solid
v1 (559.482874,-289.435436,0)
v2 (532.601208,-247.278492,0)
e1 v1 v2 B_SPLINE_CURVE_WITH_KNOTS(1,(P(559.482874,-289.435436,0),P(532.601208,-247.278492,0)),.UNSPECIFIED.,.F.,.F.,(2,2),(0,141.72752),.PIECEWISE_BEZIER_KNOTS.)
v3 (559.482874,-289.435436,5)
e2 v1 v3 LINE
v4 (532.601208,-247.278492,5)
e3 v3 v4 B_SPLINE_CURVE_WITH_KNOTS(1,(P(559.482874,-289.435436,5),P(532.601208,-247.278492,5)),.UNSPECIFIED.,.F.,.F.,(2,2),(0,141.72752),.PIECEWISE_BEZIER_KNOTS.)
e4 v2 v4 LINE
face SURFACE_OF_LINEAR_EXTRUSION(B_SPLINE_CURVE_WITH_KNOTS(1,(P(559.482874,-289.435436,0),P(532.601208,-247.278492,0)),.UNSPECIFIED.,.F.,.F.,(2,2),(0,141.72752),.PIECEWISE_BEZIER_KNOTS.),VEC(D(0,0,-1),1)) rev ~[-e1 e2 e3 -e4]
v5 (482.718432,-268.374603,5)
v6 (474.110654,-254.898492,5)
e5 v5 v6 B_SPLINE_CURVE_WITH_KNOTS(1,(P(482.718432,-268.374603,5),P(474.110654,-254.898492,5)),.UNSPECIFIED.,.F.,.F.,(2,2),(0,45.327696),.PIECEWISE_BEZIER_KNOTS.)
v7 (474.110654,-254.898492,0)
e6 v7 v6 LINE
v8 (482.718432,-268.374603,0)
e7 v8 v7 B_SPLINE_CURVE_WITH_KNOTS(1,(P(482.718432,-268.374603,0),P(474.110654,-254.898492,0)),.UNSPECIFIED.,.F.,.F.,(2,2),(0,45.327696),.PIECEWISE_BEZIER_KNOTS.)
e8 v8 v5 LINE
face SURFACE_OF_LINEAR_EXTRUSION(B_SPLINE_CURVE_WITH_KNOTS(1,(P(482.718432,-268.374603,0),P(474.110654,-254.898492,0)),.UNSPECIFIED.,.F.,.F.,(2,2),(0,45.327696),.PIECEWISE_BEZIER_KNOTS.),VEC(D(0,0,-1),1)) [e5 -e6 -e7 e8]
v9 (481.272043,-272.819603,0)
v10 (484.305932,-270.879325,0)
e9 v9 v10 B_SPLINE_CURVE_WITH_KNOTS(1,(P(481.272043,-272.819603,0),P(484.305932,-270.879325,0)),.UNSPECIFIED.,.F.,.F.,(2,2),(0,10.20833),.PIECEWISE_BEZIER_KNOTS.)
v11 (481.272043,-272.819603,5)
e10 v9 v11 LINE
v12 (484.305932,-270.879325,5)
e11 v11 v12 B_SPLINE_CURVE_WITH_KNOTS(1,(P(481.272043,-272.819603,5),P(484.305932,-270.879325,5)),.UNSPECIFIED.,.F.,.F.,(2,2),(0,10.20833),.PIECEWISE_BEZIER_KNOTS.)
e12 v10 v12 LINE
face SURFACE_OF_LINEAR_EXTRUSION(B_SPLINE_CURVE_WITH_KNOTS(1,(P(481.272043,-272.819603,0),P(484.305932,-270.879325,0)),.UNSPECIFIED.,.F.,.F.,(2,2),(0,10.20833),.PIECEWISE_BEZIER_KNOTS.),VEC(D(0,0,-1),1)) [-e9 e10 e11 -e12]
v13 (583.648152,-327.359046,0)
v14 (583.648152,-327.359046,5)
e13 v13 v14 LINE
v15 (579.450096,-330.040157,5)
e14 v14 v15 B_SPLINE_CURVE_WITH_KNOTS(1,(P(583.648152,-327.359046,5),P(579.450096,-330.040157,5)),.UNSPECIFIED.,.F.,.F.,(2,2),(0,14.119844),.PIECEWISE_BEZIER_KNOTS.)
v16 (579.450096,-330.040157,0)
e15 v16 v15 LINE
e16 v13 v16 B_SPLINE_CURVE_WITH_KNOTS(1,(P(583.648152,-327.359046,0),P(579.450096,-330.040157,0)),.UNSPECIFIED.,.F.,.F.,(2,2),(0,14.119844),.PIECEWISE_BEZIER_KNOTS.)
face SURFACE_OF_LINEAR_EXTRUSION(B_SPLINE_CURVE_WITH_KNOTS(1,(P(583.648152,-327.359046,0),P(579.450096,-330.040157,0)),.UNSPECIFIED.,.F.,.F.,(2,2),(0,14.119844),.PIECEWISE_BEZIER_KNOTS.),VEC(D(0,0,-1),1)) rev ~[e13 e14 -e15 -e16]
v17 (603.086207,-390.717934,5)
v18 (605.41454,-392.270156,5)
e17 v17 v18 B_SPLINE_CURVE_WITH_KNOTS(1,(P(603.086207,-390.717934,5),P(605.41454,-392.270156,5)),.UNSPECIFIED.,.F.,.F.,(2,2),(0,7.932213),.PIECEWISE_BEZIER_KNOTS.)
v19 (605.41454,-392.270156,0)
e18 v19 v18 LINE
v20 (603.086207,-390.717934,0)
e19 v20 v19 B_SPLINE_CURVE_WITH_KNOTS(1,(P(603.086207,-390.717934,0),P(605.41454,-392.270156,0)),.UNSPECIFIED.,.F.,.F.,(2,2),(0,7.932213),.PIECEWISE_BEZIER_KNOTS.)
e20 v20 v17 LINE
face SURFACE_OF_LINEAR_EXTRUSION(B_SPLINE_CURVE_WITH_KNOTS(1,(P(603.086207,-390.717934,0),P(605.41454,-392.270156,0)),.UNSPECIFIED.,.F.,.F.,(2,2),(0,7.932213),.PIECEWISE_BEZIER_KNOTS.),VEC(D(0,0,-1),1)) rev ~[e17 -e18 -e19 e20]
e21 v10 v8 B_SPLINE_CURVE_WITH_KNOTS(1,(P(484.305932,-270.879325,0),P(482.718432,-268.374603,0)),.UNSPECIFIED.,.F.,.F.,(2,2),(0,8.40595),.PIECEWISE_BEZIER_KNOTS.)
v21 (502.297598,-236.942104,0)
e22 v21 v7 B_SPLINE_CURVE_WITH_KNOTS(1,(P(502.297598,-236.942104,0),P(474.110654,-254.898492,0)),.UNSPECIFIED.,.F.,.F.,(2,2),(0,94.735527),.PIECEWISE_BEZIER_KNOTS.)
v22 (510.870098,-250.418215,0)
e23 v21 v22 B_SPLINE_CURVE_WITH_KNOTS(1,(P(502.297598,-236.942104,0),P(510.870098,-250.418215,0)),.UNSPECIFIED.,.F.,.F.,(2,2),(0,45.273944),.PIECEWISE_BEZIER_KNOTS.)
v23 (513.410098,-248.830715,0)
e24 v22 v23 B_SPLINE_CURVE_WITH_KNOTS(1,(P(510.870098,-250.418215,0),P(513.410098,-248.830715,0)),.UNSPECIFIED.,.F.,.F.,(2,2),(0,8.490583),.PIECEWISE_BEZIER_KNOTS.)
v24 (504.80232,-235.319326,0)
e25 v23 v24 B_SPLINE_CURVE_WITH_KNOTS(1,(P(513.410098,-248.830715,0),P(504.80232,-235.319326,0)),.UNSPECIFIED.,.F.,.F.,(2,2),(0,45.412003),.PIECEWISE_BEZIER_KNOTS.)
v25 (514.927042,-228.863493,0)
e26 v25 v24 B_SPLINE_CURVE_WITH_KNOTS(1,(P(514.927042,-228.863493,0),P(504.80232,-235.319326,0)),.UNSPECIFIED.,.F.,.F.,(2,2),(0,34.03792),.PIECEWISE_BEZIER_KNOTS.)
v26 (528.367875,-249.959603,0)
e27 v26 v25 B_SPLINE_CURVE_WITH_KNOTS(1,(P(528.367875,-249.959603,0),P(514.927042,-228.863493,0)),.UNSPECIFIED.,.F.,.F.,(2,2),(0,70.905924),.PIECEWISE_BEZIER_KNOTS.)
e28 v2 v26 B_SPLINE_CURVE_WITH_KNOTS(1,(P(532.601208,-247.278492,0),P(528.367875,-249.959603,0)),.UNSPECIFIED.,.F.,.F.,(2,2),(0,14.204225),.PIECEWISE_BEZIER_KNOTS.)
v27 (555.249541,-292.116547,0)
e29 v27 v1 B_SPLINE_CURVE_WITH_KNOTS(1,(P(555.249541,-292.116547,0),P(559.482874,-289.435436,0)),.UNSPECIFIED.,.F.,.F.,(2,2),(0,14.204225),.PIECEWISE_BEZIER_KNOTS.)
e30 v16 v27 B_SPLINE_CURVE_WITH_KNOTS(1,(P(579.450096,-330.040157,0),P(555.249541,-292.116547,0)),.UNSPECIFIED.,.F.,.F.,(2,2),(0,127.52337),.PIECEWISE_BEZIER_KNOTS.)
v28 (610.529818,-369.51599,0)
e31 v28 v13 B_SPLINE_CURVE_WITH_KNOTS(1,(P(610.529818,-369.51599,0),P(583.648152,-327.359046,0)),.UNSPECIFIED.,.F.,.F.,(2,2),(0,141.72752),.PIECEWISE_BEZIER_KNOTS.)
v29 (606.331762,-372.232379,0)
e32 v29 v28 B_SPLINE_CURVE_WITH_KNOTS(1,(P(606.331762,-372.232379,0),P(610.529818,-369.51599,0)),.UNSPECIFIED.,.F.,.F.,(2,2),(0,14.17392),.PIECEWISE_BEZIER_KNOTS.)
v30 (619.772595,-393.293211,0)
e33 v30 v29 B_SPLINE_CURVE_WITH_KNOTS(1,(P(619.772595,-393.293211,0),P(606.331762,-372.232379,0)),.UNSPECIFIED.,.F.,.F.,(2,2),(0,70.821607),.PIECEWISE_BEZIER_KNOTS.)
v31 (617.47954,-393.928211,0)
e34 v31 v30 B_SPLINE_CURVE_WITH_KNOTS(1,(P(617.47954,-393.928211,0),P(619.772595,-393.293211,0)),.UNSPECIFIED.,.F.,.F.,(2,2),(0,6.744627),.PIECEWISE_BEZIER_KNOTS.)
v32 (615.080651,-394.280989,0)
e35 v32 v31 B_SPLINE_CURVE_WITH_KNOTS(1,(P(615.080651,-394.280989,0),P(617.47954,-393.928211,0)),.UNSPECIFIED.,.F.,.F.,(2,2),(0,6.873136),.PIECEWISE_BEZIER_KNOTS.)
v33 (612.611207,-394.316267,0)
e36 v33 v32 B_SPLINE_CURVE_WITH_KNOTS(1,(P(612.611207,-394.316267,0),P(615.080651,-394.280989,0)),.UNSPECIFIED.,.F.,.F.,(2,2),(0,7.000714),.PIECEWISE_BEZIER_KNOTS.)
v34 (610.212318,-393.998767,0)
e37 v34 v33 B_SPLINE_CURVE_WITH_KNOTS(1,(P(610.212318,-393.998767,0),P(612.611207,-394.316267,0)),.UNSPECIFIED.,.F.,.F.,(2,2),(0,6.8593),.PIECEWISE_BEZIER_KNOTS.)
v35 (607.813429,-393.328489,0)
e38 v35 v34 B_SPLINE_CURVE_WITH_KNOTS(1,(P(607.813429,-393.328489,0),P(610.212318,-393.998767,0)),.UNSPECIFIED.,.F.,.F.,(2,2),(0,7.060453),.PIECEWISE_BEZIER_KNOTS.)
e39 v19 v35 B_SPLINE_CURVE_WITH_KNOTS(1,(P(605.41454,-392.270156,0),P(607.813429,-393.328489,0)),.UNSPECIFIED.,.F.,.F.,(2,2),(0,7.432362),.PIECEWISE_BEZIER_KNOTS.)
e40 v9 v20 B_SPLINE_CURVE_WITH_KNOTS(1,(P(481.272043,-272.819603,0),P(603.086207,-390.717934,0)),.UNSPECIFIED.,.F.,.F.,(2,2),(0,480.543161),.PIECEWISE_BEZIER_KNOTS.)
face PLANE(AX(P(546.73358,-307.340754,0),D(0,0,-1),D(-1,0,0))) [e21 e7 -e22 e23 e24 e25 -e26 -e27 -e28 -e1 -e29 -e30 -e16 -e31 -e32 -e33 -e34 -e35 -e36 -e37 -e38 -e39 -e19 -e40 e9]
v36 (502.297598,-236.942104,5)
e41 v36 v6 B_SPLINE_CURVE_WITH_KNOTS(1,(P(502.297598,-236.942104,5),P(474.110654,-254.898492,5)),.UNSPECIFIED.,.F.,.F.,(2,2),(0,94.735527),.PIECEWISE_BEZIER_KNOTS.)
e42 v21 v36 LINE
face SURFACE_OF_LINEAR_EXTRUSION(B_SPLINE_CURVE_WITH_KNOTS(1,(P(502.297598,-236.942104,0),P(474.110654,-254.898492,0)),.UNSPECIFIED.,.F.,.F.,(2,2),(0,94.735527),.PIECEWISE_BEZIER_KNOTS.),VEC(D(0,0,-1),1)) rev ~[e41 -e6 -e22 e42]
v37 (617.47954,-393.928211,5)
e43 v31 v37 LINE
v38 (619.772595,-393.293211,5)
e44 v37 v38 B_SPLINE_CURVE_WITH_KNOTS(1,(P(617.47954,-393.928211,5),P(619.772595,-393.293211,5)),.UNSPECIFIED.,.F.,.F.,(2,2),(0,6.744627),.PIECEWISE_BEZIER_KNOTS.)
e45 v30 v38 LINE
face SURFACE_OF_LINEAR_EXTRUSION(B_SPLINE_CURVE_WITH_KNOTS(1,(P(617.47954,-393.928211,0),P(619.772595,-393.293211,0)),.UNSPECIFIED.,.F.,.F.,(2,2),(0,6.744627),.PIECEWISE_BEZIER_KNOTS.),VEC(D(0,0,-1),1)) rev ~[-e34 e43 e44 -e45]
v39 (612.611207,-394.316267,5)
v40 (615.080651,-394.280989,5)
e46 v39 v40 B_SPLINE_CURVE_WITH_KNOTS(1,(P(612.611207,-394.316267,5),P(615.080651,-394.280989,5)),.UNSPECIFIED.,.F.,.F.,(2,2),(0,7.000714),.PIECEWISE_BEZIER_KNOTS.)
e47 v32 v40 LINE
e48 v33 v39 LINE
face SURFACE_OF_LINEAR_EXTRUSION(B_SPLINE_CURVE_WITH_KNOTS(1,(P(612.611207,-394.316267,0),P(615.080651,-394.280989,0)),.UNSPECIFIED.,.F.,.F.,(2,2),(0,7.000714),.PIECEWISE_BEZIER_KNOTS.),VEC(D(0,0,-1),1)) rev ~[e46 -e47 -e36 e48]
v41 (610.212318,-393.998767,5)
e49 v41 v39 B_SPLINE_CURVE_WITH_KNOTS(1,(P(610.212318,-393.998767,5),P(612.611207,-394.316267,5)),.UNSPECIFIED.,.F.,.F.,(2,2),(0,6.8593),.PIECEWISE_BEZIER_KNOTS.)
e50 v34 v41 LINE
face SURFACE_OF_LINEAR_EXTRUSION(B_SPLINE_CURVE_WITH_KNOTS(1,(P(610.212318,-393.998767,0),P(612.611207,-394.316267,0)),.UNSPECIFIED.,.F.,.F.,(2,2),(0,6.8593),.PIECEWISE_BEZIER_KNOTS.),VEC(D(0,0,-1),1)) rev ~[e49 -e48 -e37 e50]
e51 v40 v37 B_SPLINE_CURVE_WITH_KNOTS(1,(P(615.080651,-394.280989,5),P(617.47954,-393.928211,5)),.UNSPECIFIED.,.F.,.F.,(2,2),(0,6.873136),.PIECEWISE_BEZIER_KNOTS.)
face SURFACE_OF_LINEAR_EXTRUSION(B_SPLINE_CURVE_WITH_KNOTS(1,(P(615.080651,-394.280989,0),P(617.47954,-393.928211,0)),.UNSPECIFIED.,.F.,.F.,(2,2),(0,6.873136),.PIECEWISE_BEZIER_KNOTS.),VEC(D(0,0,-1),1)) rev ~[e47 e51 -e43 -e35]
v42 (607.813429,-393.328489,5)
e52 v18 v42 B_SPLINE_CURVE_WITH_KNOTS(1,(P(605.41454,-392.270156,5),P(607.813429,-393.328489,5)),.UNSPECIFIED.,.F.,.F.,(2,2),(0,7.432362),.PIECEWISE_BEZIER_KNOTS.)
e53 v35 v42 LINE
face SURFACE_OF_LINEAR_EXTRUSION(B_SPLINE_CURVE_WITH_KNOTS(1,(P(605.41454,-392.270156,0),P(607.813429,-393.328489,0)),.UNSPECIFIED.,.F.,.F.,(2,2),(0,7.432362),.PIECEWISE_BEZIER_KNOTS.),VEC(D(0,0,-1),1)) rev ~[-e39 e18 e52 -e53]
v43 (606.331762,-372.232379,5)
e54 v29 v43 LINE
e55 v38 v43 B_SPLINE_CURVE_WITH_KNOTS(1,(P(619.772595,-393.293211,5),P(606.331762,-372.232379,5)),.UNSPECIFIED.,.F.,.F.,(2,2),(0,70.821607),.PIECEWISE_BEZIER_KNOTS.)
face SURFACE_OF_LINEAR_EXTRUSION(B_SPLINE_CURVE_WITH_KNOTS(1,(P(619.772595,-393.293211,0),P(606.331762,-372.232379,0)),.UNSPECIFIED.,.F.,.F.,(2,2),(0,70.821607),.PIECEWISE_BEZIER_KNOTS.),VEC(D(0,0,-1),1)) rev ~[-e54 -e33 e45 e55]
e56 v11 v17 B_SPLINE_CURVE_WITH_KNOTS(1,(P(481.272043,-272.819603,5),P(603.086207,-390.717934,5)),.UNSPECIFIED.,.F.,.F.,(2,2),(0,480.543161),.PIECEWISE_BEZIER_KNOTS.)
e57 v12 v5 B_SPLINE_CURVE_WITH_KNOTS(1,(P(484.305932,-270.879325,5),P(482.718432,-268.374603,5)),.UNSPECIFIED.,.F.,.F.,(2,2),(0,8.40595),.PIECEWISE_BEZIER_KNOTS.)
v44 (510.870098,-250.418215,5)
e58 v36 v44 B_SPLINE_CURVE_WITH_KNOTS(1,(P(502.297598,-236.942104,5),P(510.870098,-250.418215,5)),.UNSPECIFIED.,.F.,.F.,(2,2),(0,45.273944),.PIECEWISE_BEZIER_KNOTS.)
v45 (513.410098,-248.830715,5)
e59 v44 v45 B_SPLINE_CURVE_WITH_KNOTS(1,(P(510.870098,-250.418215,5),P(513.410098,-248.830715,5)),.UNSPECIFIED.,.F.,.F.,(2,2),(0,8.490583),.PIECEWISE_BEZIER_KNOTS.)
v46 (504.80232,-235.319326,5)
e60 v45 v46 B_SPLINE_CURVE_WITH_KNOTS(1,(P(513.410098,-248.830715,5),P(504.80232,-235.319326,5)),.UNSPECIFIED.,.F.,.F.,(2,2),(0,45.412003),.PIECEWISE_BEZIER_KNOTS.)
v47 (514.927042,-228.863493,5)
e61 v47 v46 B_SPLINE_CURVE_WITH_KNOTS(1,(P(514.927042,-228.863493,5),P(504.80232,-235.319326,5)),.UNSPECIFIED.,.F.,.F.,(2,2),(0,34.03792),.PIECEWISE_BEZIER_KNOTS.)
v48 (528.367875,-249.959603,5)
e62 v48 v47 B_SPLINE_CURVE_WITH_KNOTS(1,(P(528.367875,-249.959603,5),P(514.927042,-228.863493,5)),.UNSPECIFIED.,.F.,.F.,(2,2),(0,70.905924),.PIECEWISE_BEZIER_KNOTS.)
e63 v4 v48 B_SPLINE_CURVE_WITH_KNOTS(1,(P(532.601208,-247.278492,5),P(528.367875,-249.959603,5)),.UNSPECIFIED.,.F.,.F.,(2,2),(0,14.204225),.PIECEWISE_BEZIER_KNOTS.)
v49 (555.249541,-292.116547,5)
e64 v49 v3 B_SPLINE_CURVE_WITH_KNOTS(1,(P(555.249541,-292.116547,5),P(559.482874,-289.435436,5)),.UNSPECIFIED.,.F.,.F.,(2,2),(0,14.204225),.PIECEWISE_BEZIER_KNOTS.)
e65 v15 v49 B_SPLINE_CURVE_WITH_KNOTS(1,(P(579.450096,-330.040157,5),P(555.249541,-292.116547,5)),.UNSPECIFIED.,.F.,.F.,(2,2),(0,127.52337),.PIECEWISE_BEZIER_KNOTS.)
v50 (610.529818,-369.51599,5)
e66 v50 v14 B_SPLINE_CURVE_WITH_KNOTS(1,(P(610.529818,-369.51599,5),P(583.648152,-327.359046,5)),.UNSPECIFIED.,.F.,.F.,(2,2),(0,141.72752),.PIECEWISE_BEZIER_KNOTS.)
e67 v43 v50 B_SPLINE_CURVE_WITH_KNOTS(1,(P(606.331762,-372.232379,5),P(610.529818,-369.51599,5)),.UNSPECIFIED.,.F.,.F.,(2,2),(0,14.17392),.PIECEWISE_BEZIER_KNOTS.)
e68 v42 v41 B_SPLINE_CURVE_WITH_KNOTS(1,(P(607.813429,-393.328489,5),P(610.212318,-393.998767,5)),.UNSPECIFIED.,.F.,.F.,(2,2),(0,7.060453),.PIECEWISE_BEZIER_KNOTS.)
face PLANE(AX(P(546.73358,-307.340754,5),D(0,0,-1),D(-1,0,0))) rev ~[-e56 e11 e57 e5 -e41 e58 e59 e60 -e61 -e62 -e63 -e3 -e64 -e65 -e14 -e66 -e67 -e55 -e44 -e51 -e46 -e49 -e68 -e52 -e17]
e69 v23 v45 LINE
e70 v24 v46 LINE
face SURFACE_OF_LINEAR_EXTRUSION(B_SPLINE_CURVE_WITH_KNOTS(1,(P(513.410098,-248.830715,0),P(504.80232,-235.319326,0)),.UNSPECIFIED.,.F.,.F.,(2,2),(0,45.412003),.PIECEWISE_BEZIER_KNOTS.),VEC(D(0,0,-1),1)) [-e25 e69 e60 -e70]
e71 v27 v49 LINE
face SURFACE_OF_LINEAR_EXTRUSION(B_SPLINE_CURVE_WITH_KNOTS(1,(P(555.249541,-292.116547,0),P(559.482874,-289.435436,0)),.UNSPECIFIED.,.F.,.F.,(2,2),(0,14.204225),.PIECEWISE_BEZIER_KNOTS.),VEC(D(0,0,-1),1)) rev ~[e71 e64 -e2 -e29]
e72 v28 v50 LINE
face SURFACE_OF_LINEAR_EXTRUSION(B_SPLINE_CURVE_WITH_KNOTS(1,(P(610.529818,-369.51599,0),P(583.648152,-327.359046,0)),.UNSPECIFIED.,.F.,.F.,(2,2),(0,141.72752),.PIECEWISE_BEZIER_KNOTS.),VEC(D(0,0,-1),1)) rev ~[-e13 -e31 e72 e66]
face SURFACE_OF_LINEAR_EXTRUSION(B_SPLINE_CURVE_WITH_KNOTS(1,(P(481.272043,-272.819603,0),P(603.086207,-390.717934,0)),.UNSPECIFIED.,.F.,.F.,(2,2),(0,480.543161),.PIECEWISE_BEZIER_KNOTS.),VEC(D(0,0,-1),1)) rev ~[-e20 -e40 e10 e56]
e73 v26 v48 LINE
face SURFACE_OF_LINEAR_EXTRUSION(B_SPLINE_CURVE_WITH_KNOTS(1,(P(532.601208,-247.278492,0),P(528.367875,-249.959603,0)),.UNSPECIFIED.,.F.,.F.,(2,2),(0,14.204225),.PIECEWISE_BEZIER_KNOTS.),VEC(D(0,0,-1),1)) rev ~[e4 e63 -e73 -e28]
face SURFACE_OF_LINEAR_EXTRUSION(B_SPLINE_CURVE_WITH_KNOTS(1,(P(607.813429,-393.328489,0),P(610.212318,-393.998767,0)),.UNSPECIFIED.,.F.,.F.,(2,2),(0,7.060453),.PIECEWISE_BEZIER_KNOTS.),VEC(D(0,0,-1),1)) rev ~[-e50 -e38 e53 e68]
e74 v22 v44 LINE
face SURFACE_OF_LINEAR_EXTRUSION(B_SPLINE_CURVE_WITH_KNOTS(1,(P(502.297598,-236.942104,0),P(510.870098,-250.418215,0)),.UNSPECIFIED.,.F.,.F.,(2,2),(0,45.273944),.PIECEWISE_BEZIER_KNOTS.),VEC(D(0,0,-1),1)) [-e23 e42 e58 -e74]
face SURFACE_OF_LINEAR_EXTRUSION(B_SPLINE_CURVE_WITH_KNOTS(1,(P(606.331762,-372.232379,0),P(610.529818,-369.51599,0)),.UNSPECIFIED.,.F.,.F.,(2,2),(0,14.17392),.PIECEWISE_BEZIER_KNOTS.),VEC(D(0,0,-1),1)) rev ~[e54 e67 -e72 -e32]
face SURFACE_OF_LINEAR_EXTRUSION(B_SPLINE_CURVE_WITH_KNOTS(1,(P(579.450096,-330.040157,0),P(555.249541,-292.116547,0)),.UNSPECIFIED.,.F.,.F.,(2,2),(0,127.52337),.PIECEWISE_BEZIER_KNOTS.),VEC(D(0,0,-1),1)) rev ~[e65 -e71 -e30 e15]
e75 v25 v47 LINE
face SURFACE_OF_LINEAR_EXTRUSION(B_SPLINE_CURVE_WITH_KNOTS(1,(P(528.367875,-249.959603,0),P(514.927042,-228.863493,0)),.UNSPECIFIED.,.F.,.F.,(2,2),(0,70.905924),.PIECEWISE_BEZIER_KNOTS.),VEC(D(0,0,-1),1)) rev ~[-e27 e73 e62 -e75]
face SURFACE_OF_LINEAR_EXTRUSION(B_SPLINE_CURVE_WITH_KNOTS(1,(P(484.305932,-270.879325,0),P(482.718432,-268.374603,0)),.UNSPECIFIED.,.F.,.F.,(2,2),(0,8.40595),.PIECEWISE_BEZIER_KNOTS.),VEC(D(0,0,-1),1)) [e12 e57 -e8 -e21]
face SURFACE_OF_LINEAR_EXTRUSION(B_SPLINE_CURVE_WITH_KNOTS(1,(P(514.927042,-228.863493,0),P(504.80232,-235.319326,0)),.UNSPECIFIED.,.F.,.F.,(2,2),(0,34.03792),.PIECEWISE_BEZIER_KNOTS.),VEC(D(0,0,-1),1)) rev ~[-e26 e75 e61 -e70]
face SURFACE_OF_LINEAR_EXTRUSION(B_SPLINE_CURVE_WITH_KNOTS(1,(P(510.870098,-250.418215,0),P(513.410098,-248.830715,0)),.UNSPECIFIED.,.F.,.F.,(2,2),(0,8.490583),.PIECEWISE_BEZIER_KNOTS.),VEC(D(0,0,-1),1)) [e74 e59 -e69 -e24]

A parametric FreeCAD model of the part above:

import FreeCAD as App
import Part
import Sketcher

V = App.Vector

doc = App.newDocument("Part")
body = doc.addObject("PartDesign::Body", "Body")

# Sketch on XY plane
sketch1 = body.newObject("Sketcher::SketchObject", "Sketch")
sketch1.AttachmentSupport = (doc.getObject("XY_Plane"), [""])
sketch1.MapMode = "FlatFace"
sketch1.addGeometry(Part.BSplineCurve([V(502.297598, -236.942104, 0), V(510.870098, -250.418215, 0)], [2, 2], [0, 45.273944], False, 1, [1, 1], False), False)
sketch1.addGeometry(Part.BSplineCurve([V(502.297598, -236.942104, 0), V(474.110654, -254.898492, 0)], [2, 2], [0, 94.735527], False, 1, [1, 1], False), False)
sketch1.addGeometry(Part.BSplineCurve([V(482.718432, -268.374603, 0), V(474.110654, -254.898492, 0)], [2, 2], [0, 45.327696], False, 1, [1, 1], False), False)
sketch1.addGeometry(Part.BSplineCurve([V(484.305932, -270.879325, 0), V(482.718432, -268.374603, 0)], [2, 2], [0, 8.40595], False, 1, [1, 1], False), False)
sketch1.addGeometry(Part.BSplineCurve([V(481.272043, -272.819603, 0), V(484.305932, -270.879325, 0)], [2, 2], [0, 10.20833], False, 1, [1, 1], False), False)
sketch1.addGeometry(Part.BSplineCurve([V(481.272043, -272.819603, 0), V(603.086207, -390.717934, 0)], [2, 2], [0, 480.543161], False, 1, [1, 1], False), False)
sketch1.addGeometry(Part.BSplineCurve([V(603.086207, -390.717934, 0), V(605.41454, -392.270156, 0)], [2, 2], [0, 7.932213], False, 1, [1, 1], False), False)
sketch1.addGeometry(Part.BSplineCurve([V(605.41454, -392.270156, 0), V(607.813429, -393.328489, 0)], [2, 2], [0, 7.432362], False, 1, [1, 1], False), False)
sketch1.addGeometry(Part.BSplineCurve([V(607.813429, -393.328489, 0), V(610.212318, -393.998767, 0)], [2, 2], [0, 7.060453], False, 1, [1, 1], False), False)
sketch1.addGeometry(Part.BSplineCurve([V(610.212318, -393.998767, 0), V(612.611207, -394.316267, 0)], [2, 2], [0, 6.8593], False, 1, [1, 1], False), False)
sketch1.addGeometry(Part.BSplineCurve([V(612.611207, -394.316267, 0), V(615.080651, -394.280989, 0)], [2, 2], [0, 7.000714], False, 1, [1, 1], False), False)
sketch1.addGeometry(Part.BSplineCurve([V(615.080651, -394.280989, 0), V(617.47954, -393.928211, 0)], [2, 2], [0, 6.873136], False, 1, [1, 1], False), False)
sketch1.addGeometry(Part.BSplineCurve([V(617.47954, -393.928211, 0), V(619.772595, -393.293211, 0)], [2, 2], [0, 6.744627], False, 1, [1, 1], False), False)
sketch1.addGeometry(Part.BSplineCurve([V(619.772595, -393.293211, 0), V(606.331762, -372.232379, 0)], [2, 2], [0, 70.821607], False, 1, [1, 1], False), False)
sketch1.addGeometry(Part.BSplineCurve([V(606.331762, -372.232379, 0), V(610.529818, -369.51599, 0)], [2, 2], [0, 14.17392], False, 1, [1, 1], False), False)
sketch1.addGeometry(Part.BSplineCurve([V(610.529818, -369.51599, 0), V(583.648152, -327.359046, 0)], [2, 2], [0, 141.72752], False, 1, [1, 1], False), False)
sketch1.addGeometry(Part.BSplineCurve([V(583.648152, -327.359046, 0), V(579.450096, -330.040157, 0)], [2, 2], [0, 14.119844], False, 1, [1, 1], False), False)
sketch1.addGeometry(Part.BSplineCurve([V(579.450096, -330.040157, 0), V(555.249541, -292.116547, 0)], [2, 2], [0, 127.52337], False, 1, [1, 1], False), False)
sketch1.addGeometry(Part.BSplineCurve([V(555.249541, -292.116547, 0), V(559.482874, -289.435436, 0)], [2, 2], [0, 14.204225], False, 1, [1, 1], False), False)
sketch1.addGeometry(Part.BSplineCurve([V(559.482874, -289.435436, 0), V(532.601208, -247.278492, 0)], [2, 2], [0, 141.72752], False, 1, [1, 1], False), False)
sketch1.addGeometry(Part.BSplineCurve([V(532.601208, -247.278492, 0), V(528.367875, -249.959603, 0)], [2, 2], [0, 14.204225], False, 1, [1, 1], False), False)
sketch1.addGeometry(Part.BSplineCurve([V(528.367875, -249.959603, 0), V(514.927042, -228.863493, 0)], [2, 2], [0, 70.905924], False, 1, [1, 1], False), False)
sketch1.addGeometry(Part.BSplineCurve([V(514.927042, -228.863493, 0), V(504.80232, -235.319326, 0)], [2, 2], [0, 34.03792], False, 1, [1, 1], False), False)
sketch1.addGeometry(Part.BSplineCurve([V(513.410098, -248.830715, 0), V(504.80232, -235.319326, 0)], [2, 2], [0, 45.412003], False, 1, [1, 1], False), False)
sketch1.addGeometry(Part.BSplineCurve([V(510.870098, -250.418215, 0), V(513.410098, -248.830715, 0)], [2, 2], [0, 8.490583], False, 1, [1, 1], False), False)
sketch1.addConstraint(Sketcher.Constraint("Block", 0))
sketch1.addConstraint(Sketcher.Constraint("Block", 1))
sketch1.addConstraint(Sketcher.Constraint("Block", 2))
sketch1.addConstraint(Sketcher.Constraint("Block", 3))
sketch1.addConstraint(Sketcher.Constraint("Block", 4))
sketch1.addConstraint(Sketcher.Constraint("Block", 5))
sketch1.addConstraint(Sketcher.Constraint("Block", 6))
sketch1.addConstraint(Sketcher.Constraint("Block", 7))
sketch1.addConstraint(Sketcher.Constraint("Block", 8))
sketch1.addConstraint(Sketcher.Constraint("Block", 9))
sketch1.addConstraint(Sketcher.Constraint("Block", 10))
sketch1.addConstraint(Sketcher.Constraint("Block", 11))
sketch1.addConstraint(Sketcher.Constraint("Block", 12))
sketch1.addConstraint(Sketcher.Constraint("Block", 13))
sketch1.addConstraint(Sketcher.Constraint("Block", 14))
sketch1.addConstraint(Sketcher.Constraint("Block", 15))
sketch1.addConstraint(Sketcher.Constraint("Block", 16))
sketch1.addConstraint(Sketcher.Constraint("Block", 17))
sketch1.addConstraint(Sketcher.Constraint("Block", 18))
sketch1.addConstraint(Sketcher.Constraint("Block", 19))
sketch1.addConstraint(Sketcher.Constraint("Block", 20))
sketch1.addConstraint(Sketcher.Constraint("Block", 21))
sketch1.addConstraint(Sketcher.Constraint("Block", 22))
sketch1.addConstraint(Sketcher.Constraint("Block", 23))
sketch1.addConstraint(Sketcher.Constraint("Block", 24))
pad1 = body.newObject("PartDesign::Pad", "Pad")
pad1.Profile = sketch1
pad1.Length = 5

doc.recompute()
